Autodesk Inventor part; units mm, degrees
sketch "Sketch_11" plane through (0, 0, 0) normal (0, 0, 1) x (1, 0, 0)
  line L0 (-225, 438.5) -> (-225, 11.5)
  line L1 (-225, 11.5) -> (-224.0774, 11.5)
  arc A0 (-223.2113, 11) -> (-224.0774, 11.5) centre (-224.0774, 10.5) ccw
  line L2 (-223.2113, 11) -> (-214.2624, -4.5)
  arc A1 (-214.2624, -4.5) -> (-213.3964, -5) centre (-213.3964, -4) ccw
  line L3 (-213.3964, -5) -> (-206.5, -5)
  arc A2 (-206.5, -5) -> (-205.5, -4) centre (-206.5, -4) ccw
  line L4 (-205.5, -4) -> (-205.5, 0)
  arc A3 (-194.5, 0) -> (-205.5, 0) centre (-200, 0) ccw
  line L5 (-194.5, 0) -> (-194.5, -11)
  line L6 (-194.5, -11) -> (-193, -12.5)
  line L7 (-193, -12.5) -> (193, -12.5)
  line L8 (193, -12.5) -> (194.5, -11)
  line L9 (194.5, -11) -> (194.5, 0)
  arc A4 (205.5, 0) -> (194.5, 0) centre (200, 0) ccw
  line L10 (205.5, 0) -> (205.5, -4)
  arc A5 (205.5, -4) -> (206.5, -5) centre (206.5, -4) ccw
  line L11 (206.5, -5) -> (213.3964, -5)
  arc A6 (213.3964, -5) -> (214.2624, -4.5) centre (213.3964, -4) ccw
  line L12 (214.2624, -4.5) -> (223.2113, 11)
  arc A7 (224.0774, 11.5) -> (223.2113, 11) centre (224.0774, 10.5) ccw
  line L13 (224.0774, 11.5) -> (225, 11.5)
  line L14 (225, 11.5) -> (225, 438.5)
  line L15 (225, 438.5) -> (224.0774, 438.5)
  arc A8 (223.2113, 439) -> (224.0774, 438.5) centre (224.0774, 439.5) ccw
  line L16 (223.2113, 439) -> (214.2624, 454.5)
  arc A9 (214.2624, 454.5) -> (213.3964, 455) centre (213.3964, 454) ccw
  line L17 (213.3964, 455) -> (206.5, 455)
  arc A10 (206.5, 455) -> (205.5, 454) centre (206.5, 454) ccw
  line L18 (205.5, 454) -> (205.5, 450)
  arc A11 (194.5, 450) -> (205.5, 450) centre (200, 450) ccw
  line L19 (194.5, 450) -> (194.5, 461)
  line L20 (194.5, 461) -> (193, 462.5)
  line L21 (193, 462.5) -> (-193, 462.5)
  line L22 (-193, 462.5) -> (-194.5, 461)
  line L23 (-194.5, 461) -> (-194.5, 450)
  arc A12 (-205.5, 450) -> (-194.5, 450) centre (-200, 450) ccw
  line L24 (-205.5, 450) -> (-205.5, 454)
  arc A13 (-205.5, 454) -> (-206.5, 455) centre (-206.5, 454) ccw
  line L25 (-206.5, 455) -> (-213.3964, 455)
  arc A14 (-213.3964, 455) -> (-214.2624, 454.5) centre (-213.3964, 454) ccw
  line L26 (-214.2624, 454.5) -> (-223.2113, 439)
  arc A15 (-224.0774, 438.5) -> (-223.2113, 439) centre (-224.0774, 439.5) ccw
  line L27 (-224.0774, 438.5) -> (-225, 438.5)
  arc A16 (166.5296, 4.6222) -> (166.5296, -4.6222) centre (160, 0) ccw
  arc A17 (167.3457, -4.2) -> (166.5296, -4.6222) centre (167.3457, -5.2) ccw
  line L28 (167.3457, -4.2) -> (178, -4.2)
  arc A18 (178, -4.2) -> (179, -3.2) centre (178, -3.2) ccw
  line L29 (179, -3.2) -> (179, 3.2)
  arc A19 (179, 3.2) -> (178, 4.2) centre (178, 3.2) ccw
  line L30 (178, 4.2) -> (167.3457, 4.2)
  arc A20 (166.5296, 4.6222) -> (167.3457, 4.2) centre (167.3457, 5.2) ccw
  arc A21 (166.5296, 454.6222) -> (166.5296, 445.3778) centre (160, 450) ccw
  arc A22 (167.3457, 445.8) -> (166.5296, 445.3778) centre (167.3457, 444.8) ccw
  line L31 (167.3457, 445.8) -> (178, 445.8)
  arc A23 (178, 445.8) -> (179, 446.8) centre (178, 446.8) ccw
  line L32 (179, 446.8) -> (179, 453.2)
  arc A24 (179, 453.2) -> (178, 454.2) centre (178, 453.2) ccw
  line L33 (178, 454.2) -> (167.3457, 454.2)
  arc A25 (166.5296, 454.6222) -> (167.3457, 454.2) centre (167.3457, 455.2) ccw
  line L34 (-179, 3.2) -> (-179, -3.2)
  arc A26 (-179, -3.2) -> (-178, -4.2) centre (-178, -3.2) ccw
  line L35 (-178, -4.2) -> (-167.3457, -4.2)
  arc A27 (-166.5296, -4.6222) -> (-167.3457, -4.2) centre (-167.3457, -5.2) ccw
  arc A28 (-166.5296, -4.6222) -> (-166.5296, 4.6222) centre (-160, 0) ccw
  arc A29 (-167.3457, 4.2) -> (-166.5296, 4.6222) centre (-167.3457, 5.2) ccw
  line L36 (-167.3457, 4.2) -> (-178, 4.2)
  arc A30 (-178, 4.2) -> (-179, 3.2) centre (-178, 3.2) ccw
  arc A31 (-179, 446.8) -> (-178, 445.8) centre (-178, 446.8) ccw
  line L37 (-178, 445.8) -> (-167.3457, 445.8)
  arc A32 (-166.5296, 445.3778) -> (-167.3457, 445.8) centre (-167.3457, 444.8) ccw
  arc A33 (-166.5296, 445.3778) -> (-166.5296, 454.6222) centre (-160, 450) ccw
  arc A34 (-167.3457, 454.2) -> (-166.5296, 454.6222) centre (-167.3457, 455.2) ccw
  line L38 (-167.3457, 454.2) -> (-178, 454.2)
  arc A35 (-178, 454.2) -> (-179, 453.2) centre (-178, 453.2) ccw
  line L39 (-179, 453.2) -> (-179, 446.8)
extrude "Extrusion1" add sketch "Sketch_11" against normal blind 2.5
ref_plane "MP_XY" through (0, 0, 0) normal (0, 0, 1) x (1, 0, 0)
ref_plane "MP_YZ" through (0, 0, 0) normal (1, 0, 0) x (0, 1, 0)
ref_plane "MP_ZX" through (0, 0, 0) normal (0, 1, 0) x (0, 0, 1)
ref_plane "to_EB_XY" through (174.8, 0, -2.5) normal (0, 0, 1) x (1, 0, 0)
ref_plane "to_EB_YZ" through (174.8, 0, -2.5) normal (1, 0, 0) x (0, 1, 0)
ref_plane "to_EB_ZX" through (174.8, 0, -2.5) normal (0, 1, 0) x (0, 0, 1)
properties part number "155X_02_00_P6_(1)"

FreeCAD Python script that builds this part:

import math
import FreeCAD as App
import Part
import Sketcher
from FreeCAD import Vector
Q = App.Units.Quantity

doc = App.newDocument("Part")
body = doc.addObject("PartDesign::Body", "Body")

# Sketch on XY plane
sketch1 = doc.addObject("Sketcher::SketchObject", "Sketch")
body.addObject(sketch1)
sketch1.AttachmentSupport = (doc.XY_Plane, [""])
sketch1.MapMode = "FlatFace"
sketch1.addGeometry([
    Part.LineSegment(Vector(-224.0774, 438.5, 0), Vector(-225, 438.5, 0)),  # 0
    Part.LineSegment(Vector(-225, 438.5, 0), Vector(-225, 11.5, 0)),  # 1
    Part.LineSegment(Vector(-225, 11.5, 0), Vector(-224.0774, 11.5, 0)),  # 2
    Part.ArcOfCircle(Part.Circle(Vector(-224.0774, 10.5, 0), Vector(0, 0, 1), 1.000065), math.radians(29.997863), math.radians(90)),  # 3
    Part.LineSegment(Vector(-223.2113, 11, 0), Vector(-214.2624, -4.5, 0)),  # 4
    Part.ArcOfCircle(Part.Circle(Vector(-213.3964, -4, 0), Vector(0, 0, 1), 0.999978), math.radians(-149.999272), math.radians(-90)),  # 5
    Part.LineSegment(Vector(-213.3964, -5, 0), Vector(-206.5, -5, 0)),  # 6
    Part.ArcOfCircle(Part.Circle(Vector(-206.5, -4, 0), Vector(0, 0, 1), 1), math.radians(-90), math.radians(0)),  # 7
    Part.LineSegment(Vector(-205.5, -4, 0), Vector(-205.5, 0, 0)),  # 8
    Part.ArcOfCircle(Part.Circle(Vector(-200, 0, 0), Vector(0, 0, 1), 5.5), math.radians(0), math.radians(180)),  # 9
    Part.LineSegment(Vector(-194.5, 0, 0), Vector(-194.5, -11, 0)),  # 10
    Part.LineSegment(Vector(-194.5, -11, 0), Vector(-193, -12.5, 0)),  # 11
    Part.LineSegment(Vector(-193, -12.5, 0), Vector(193, -12.5, 0)),  # 12
    Part.LineSegment(Vector(193, -12.5, 0), Vector(194.5, -11, 0)),  # 13
    Part.LineSegment(Vector(194.5, -11, 0), Vector(194.5, 0, 0)),  # 14
    Part.ArcOfCircle(Part.Circle(Vector(200, 0, 0), Vector(0, 0, 1), 5.5), math.radians(0), math.radians(180)),  # 15
    Part.LineSegment(Vector(205.5, 0, 0), Vector(205.5, -4, 0)),  # 16
    Part.ArcOfCircle(Part.Circle(Vector(206.5, -4, 0), Vector(0, 0, 1), 1), math.radians(180), math.radians(270)),  # 17
    Part.LineSegment(Vector(206.5, -5, 0), Vector(213.3964, -5, 0)),  # 18
    Part.ArcOfCircle(Part.Circle(Vector(213.3964, -4, 0), Vector(0, 0, 1), 1), math.radians(-90), math.radians(-30.000728)),  # 19
    Part.LineSegment(Vector(214.2624, -4.5, 0), Vector(223.2113, 11, 0)),  # 20
    Part.ArcOfCircle(Part.Circle(Vector(224.0774, 10.5, 0), Vector(0, 0, 1), 1), math.radians(90), math.radians(150.002137)),  # 21
    Part.LineSegment(Vector(224.0774, 11.5, 0), Vector(225, 11.5, 0)),  # 22
    Part.LineSegment(Vector(225, 11.5, 0), Vector(225, 438.5, 0)),  # 23
    Part.LineSegment(Vector(225, 438.5, 0), Vector(224.0774, 438.5, 0)),  # 24
    Part.ArcOfCircle(Part.Circle(Vector(224.0774, 439.5, 0), Vector(0, 0, 1), 1.000065), math.radians(-150.002137), math.radians(-90)),  # 25
    Part.LineSegment(Vector(223.2113, 439, 0), Vector(214.2624, 454.5, 0)),  # 26
    Part.ArcOfCircle(Part.Circle(Vector(213.3964, 454, 0), Vector(0, 0, 1), 0.999978), math.radians(30.000728), math.radians(90)),  # 27
    Part.LineSegment(Vector(213.3964, 455, 0), Vector(206.5, 455, 0)),  # 28
    Part.ArcOfCircle(Part.Circle(Vector(206.5, 454, 0), Vector(0, 0, 1), 1), math.radians(90), math.radians(180)),  # 29
    Part.LineSegment(Vector(205.5, 454, 0), Vector(205.5, 450, 0)),  # 30
    Part.ArcOfCircle(Part.Circle(Vector(200, 450, 0), Vector(0, 0, 1), 5.5), math.radians(180), math.radians(360)),  # 31
    Part.LineSegment(Vector(194.5, 450, 0), Vector(194.5, 461, 0)),  # 32
    Part.LineSegment(Vector(194.5, 461, 0), Vector(193, 462.5, 0)),  # 33
    Part.LineSegment(Vector(193, 462.5, 0), Vector(-193, 462.5, 0)),  # 34
    Part.LineSegment(Vector(-193, 462.5, 0), Vector(-194.5, 461, 0)),  # 35
    Part.LineSegment(Vector(-194.5, 461, 0), Vector(-194.5, 450, 0)),  # 36
    Part.ArcOfCircle(Part.Circle(Vector(-200, 450, 0), Vector(0, 0, 1), 5.5), math.radians(180), math.radians(360)),  # 37
    Part.LineSegment(Vector(-205.5, 450, 0), Vector(-205.5, 454, 0)),  # 38
    Part.ArcOfCircle(Part.Circle(Vector(-206.5, 454, 0), Vector(0, 0, 1), 1), math.radians(0), math.radians(90)),  # 39
    Part.LineSegment(Vector(-206.5, 455, 0), Vector(-213.3964, 455, 0)),  # 40
    Part.ArcOfCircle(Part.Circle(Vector(-213.3964, 454, 0), Vector(0, 0, 1), 1), math.radians(90), math.radians(149.999272)),  # 41
    Part.LineSegment(Vector(-214.2624, 454.5, 0), Vector(-223.2113, 439, 0)),  # 42
    Part.ArcOfCircle(Part.Circle(Vector(-224.0774, 439.5, 0), Vector(0, 0, 1), 1), math.radians(-90), math.radians(-29.997863)),  # 43
    Part.LineSegment(Vector(-179, -3.2, 0), Vector(-179, 3.2, 0)),  # 44
    Part.ArcOfCircle(Part.Circle(Vector(-178, 3.2, 0), Vector(0, 0, 1), 1), math.radians(90), math.radians(180)),  # 45
    Part.LineSegment(Vector(-178, 4.2, 0), Vector(-167.3457, 4.2, 0)),  # 46
    Part.ArcOfCircle(Part.Circle(Vector(-167.3457, 5.2, 0), Vector(0, 0, 1), 1), math.radians(-90), math.radians(-35.29855)),  # 47
    Part.ArcOfCircle(Part.Circle(Vector(-160, 0, 0), Vector(0, 0, 1), 8.000026), math.radians(-144.70593), math.radians(144.70593)),  # 48
    Part.ArcOfCircle(Part.Circle(Vector(-167.3457, -5.2, 0), Vector(0, 0, 1), 0.999936), math.radians(35.29855), math.radians(90)),  # 49
    Part.LineSegment(Vector(-167.3457, -4.2, 0), Vector(-178, -4.2, 0)),  # 50
    Part.ArcOfCircle(Part.Circle(Vector(-178, -3.2, 0), Vector(0, 0, 1), 1), math.radians(180), math.radians(270)),  # 51
    Part.ArcOfCircle(Part.Circle(Vector(160, 0, 0), Vector(0, 0, 1), 8.000026), math.radians(35.29407), math.radians(324.70593)),  # 52
    Part.ArcOfCircle(Part.Circle(Vector(167.3457, 5.2, 0), Vector(0, 0, 1), 0.999936), math.radians(-144.70145), math.radians(-90)),  # 53
    Part.LineSegment(Vector(167.3457, 4.2, 0), Vector(178, 4.2, 0)),  # 54
    Part.ArcOfCircle(Part.Circle(Vector(178, 3.2, 0), Vector(0, 0, 1), 1), math.radians(0), math.radians(90)),  # 55
    Part.LineSegment(Vector(179, 3.2, 0), Vector(179, -3.2, 0)),  # 56
    Part.ArcOfCircle(Part.Circle(Vector(178, -3.2, 0), Vector(0, 0, 1), 1), math.radians(-90), math.radians(0)),  # 57
    Part.LineSegment(Vector(178, -4.2, 0), Vector(167.3457, -4.2, 0)),  # 58
    Part.ArcOfCircle(Part.Circle(Vector(167.3457, -5.2, 0), Vector(0, 0, 1), 1), math.radians(90), math.radians(144.70145)),  # 59
    Part.ArcOfCircle(Part.Circle(Vector(-178, 446.8, 0), Vector(0, 0, 1), 1), math.radians(180), math.radians(270)),  # 60
    Part.LineSegment(Vector(-179, 446.8, 0), Vector(-179, 453.2, 0)),  # 61
    Part.ArcOfCircle(Part.Circle(Vector(-178, 453.2, 0), Vector(0, 0, 1), 1), math.radians(90), math.radians(180)),  # 62
    Part.LineSegment(Vector(-178, 454.2, 0), Vector(-167.3457, 454.2, 0)),  # 63
    Part.ArcOfCircle(Part.Circle(Vector(-167.3457, 455.2, 0), Vector(0, 0, 1), 1), math.radians(-90), math.radians(-35.29855)),  # 64
    Part.ArcOfCircle(Part.Circle(Vector(-160, 450, 0), Vector(0, 0, 1), 8.000026), math.radians(-144.70593), math.radians(144.70593)),  # 65
    Part.ArcOfCircle(Part.Circle(Vector(-167.3457, 444.8, 0), Vector(0, 0, 1), 0.999936), math.radians(35.29855), math.radians(90)),  # 66
    Part.LineSegment(Vector(-167.3457, 445.8, 0), Vector(-178, 445.8, 0)),  # 67
    Part.ArcOfCircle(Part.Circle(Vector(160, 450, 0), Vector(0, 0, 1), 8.000026), math.radians(35.29407), math.radians(324.70593)),  # 68
    Part.ArcOfCircle(Part.Circle(Vector(167.3457, 455.2, 0), Vector(0, 0, 1), 0.999936), math.radians(-144.70145), math.radians(-90)),  # 69
    Part.LineSegment(Vector(167.3457, 454.2, 0), Vector(178, 454.2, 0)),  # 70
    Part.ArcOfCircle(Part.Circle(Vector(178, 453.2, 0), Vector(0, 0, 1), 1), math.radians(0), math.radians(90)),  # 71
    Part.LineSegment(Vector(179, 453.2, 0), Vector(179, 446.8, 0)),  # 72
    Part.ArcOfCircle(Part.Circle(Vector(178, 446.8, 0), Vector(0, 0, 1), 1), math.radians(-90), math.radians(0)),  # 73
    Part.LineSegment(Vector(178, 445.8, 0), Vector(167.3457, 445.8, 0)),  # 74
    Part.ArcOfCircle(Part.Circle(Vector(167.3457, 444.8, 0), Vector(0, 0, 1), 1), math.radians(90), math.radians(144.70145)),  # 75
], False)
sketch1.addConstraint([
    Sketcher.Constraint("Coincident", 0, 2, 1, 1),
    Sketcher.Constraint("Coincident", 1, 2, 2, 1),
    Sketcher.Constraint("Tangent", 2, 2, 3, 2),
    Sketcher.Constraint("Tangent", 3, 1, 4, 1),
    Sketcher.Constraint("Tangent", 4, 2, 5, 1),
    Sketcher.Constraint("Tangent", 5, 2, 6, 1),
    Sketcher.Constraint("Tangent", 6, 2, 7, 1),
    Sketcher.Constraint("Tangent", 7, 2, 8, 1),
    Sketcher.Constraint("Tangent", 8, 2, 9, 2),
    Sketcher.Constraint("Tangent", 9, 1, 10, 1),
    Sketcher.Constraint("Coincident", 10, 2, 11, 1),
    Sketcher.Constraint("Coincident", 11, 2, 12, 1),
    Sketcher.Constraint("Coincident", 12, 2, 13, 1),
    Sketcher.Constraint("Coincident", 13, 2, 14, 1),
    Sketcher.Constraint("Tangent", 14, 2, 15, 2),
    Sketcher.Constraint("Tangent", 15, 1, 16, 1),
    Sketcher.Constraint("Tangent", 16, 2, 17, 1),
    Sketcher.Constraint("Tangent", 17, 2, 18, 1),
    Sketcher.Constraint("Tangent", 18, 2, 19, 1),
    Sketcher.Constraint("Tangent", 19, 2, 20, 1),
    Sketcher.Constraint("Tangent", 20, 2, 21, 2),
    Sketcher.Constraint("Tangent", 21, 1, 22, 1),
    Sketcher.Constraint("Coincident", 22, 2, 23, 1),
    Sketcher.Constraint("Coincident", 23, 2, 24, 1),
    Sketcher.Constraint("Tangent", 24, 2, 25, 2),
    Sketcher.Constraint("Tangent", 25, 1, 26, 1),
    Sketcher.Constraint("Tangent", 26, 2, 27, 1),
    Sketcher.Constraint("Tangent", 27, 2, 28, 1),
    Sketcher.Constraint("Tangent", 28, 2, 29, 1),
    Sketcher.Constraint("Tangent", 29, 2, 30, 1),
    Sketcher.Constraint("Tangent", 30, 2, 31, 2),
    Sketcher.Constraint("Tangent", 31, 1, 32, 1),
    Sketcher.Constraint("Coincident", 32, 2, 33, 1),
    Sketcher.Constraint("Coincident", 33, 2, 34, 1),
    Sketcher.Constraint("Coincident", 34, 2, 35, 1),
    Sketcher.Constraint("Coincident", 35, 2, 36, 1),
    Sketcher.Constraint("Tangent", 36, 2, 37, 2),
    Sketcher.Constraint("Tangent", 37, 1, 38, 1),
    Sketcher.Constraint("Tangent", 38, 2, 39, 1),
    Sketcher.Constraint("Tangent", 39, 2, 40, 1),
    Sketcher.Constraint("Tangent", 40, 2, 41, 1),
    Sketcher.Constraint("Tangent", 41, 2, 42, 1),
    Sketcher.Constraint("Tangent", 42, 2, 43, 2),
    Sketcher.Constraint("Tangent", 43, 1, 0, 1),
    Sketcher.Constraint("Tangent", 44, 2, 45, 2),
    Sketcher.Constraint("Tangent", 45, 1, 46, 1),
    Sketcher.Constraint("Tangent", 46, 2, 47, 1),
    Sketcher.Constraint("Tangent", 47, 2, 48, 2),
    Sketcher.Constraint("Tangent", 48, 1, 49, 1),
    Sketcher.Constraint("Tangent", 49, 2, 50, 1),
    Sketcher.Constraint("Tangent", 50, 2, 51, 2),
    Sketcher.Constraint("Tangent", 51, 1, 44, 1),
    Sketcher.Constraint("Tangent", 52, 1, 53, 1),
    Sketcher.Constraint("Tangent", 53, 2, 54, 1),
    Sketcher.Constraint("Tangent", 54, 2, 55, 2),
    Sketcher.Constraint("Tangent", 55, 1, 56, 1),
    Sketcher.Constraint("Tangent", 56, 2, 57, 2),
    Sketcher.Constraint("Tangent", 57, 1, 58, 1),
    Sketcher.Constraint("Tangent", 58, 2, 59, 1),
    Sketcher.Constraint("Tangent", 59, 2, 52, 2),
    Sketcher.Constraint("Tangent", 60, 1, 61, 1),
    Sketcher.Constraint("Tangent", 61, 2, 62, 2),
    Sketcher.Constraint("Tangent", 62, 1, 63, 1),
    Sketcher.Constraint("Tangent", 63, 2, 64, 1),
    Sketcher.Constraint("Tangent", 64, 2, 65, 2),
    Sketcher.Constraint("Tangent", 65, 1, 66, 1),
    Sketcher.Constraint("Tangent", 66, 2, 67, 1),
    Sketcher.Constraint("Tangent", 67, 2, 60, 2),
    Sketcher.Constraint("Tangent", 68, 1, 69, 1),
    Sketcher.Constraint("Tangent", 69, 2, 70, 1),
    Sketcher.Constraint("Tangent", 70, 2, 71, 2),
    Sketcher.Constraint("Tangent", 71, 1, 72, 1),
    Sketcher.Constraint("Tangent", 72, 2, 73, 2),
    Sketcher.Constraint("Tangent", 73, 1, 74, 1),
    Sketcher.Constraint("Tangent", 74, 2, 75, 1),
    Sketcher.Constraint("Tangent", 75, 2, 68, 2),
    Sketcher.Constraint("Horizontal", 0),
    Sketcher.Constraint("Vertical", 1),
    Sketcher.Constraint("Horizontal", 2),
    Sketcher.Constraint("Horizontal", 6),
    Sketcher.Constraint("Vertical", 8),
    Sketcher.Constraint("Vertical", 10),
    Sketcher.Constraint("Horizontal", 12),
    Sketcher.Constraint("Vertical", 14),
    Sketcher.Constraint("Vertical", 16),
    Sketcher.Constraint("Horizontal", 18),
    Sketcher.Constraint("Horizontal", 22),
    Sketcher.Constraint("Vertical", 23),
    Sketcher.Constraint("Horizontal", 24),
    Sketcher.Constraint("Horizontal", 28),
    Sketcher.Constraint("Vertical", 30),
    Sketcher.Constraint("Vertical", 32),
    Sketcher.Constraint("Horizontal", 34),
    Sketcher.Constraint("Vertical", 36),
    Sketcher.Constraint("Vertical", 38),
    Sketcher.Constraint("Horizontal", 40),
    Sketcher.Constraint("Vertical", 44),
    Sketcher.Constraint("Horizontal", 46),
    Sketcher.Constraint("Horizontal", 50),
    Sketcher.Constraint("Horizontal", 54),
    Sketcher.Constraint("Vertical", 56),
    Sketcher.Constraint("Horizontal", 58),
    Sketcher.Constraint("Vertical", 61),
    Sketcher.Constraint("Horizontal", 63),
    Sketcher.Constraint("Horizontal", 67),
    Sketcher.Constraint("Horizontal", 70),
    Sketcher.Constraint("Vertical", 72),
    Sketcher.Constraint("Horizontal", 74),
    Sketcher.Constraint("Equal", 3, 5),
    Sketcher.Constraint("Equal", 5, 7),
    Sketcher.Constraint("Equal", 9, 15),
    Sketcher.Constraint("Equal", 7, 17),
    Sketcher.Constraint("Equal", 17, 19),
    Sketcher.Constraint("Equal", 19, 21),
    Sketcher.Constraint("Equal", 21, 25),
    Sketcher.Constraint("Equal", 25, 27),
    Sketcher.Constraint("Equal", 27, 29),
    Sketcher.Constraint("Equal", 15, 31),
    Sketcher.Constraint("Equal", 31, 37),
    Sketcher.Constraint("Equal", 29, 39),
    Sketcher.Constraint("Equal", 39, 41),
    Sketcher.Constraint("Equal", 41, 43),
    Sketcher.Constraint("Equal", 43, 45),
    Sketcher.Constraint("Equal", 45, 47),
    Sketcher.Constraint("Equal", 47, 49),
    Sketcher.Constraint("Equal", 49, 51),
    Sketcher.Constraint("Equal", 48, 52),
    Sketcher.Constraint("Equal", 51, 53),
    Sketcher.Constraint("Equal", 53, 55),
    Sketcher.Constraint("Equal", 55, 57),
    Sketcher.Constraint("Equal", 57, 59),
    Sketcher.Constraint("Equal", 59, 60),
    Sketcher.Constraint("Equal", 60, 62),
    Sketcher.Constraint("Equal", 62, 64),
    Sketcher.Constraint("Equal", 52, 65),
    Sketcher.Constraint("Equal", 64, 66),
    Sketcher.Constraint("Equal", 65, 68),
    Sketcher.Constraint("Equal", 66, 69),
    Sketcher.Constraint("Equal", 69, 71),
    Sketcher.Constraint("Equal", 71, 73),
    Sketcher.Constraint("Equal", 73, 75),
    Sketcher.Constraint("Symmetric", 9, 3, 15, 3, -1, 1),
    Sketcher.Constraint("Symmetric", 48, 3, 52, 3, -1, 1),
    Sketcher.Constraint("Symmetric", 51, 3, 55, 3, -1, 1),
    Sketcher.Constraint("Symmetric", 5, 3, 19, 3, -2),
    Sketcher.Constraint("Symmetric", 3, 3, 21, 3, -2),
    Sketcher.Constraint("Symmetric", 31, 3, 37, 3, -2),
    Sketcher.Constraint("Symmetric", 27, 3, 41, 3, -2),
    Sketcher.Constraint("Symmetric", 25, 3, 43, 3, -2),
    Sketcher.Constraint("Symmetric", 47, 3, 53, 3, -2),
    Sketcher.Constraint("Symmetric", 65, 3, 68, 3, -2),
    Sketcher.Constraint("Symmetric", 62, 3, 71, 3, -2),
    Sketcher.Constraint("PointOnObject", 9, 3, -1),
    Sketcher.Constraint("Perpendicular", 11, 13),
    Sketcher.Constraint("Parallel", 4, 26),
    Sketcher.Constraint("Perpendicular", 13, 33),
    Sketcher.Constraint("Perpendicular", 33, 35),
    Sketcher.Constraint("Horizontal", 51, 3, 57, 3),
    Sketcher.Constraint("Horizontal", 37, 3, 65, 3),
    Sketcher.Constraint("Horizontal", 60, 3, 73, 3),
    Sketcher.Constraint("Horizontal", 10, 2, 13, 2),
    Sketcher.Constraint("Horizontal", 32, 2, 35, 2),
    Sketcher.Constraint("Vertical", 21, 3, 25, 3),
    Sketcher.Constraint("Vertical", 19, 3, 27, 3),
    Sketcher.Constraint("Vertical", 17, 3, 29, 3),
    Sketcher.Constraint("Vertical", 51, 3, 60, 3),
    Sketcher.Constraint("Vertical", 49, 3, 64, 3),
    Sketcher.Constraint("Vertical", 48, 3, 65, 3),
    Sketcher.Constraint("Vertical", 64, 3, 66, 3),
    Sketcher.Constraint("Vertical", 12, 2, 33, 2),
    Sketcher.Constraint("Vertical", 11, 2, 34, 2),
    Sketcher.Constraint("Equal", 2, 22),
    Sketcher.Constraint("Equal", 16, 30),
    Sketcher.Constraint("Equal", 14, 32),
    Sketcher.Constraint("Radius", 3, 1.0),
    Sketcher.Constraint("Radius", 48, 8.0),
    Sketcher.Constraint("Radius", 9, 5.5),
    Sketcher.Constraint("DistanceX", 12, 1, 12, 2, 386.0),
    Sketcher.Constraint("DistanceY", 1, 2, 1, 1, 427.0),
    Sketcher.Constraint("DistanceY", 8, 1, 8, 2, 4.0),
    Sketcher.Constraint("DistanceY", 10, 2, 10, 1, 11.0),
    Sketcher.Constraint("Angle", 4, Q("-60 deg")),
    Sketcher.Constraint("DistanceY", 44, 1, 44, 2, 6.4),
    Sketcher.Constraint("DistanceX", 9, 3, -1, 1, 200.0),
    Sketcher.Constraint("DistanceY", -1, 1, 27, 3, 454.0),
    Sketcher.Constraint("DistanceX", 45, 3, -1, 1, 178.0),
    Sketcher.Constraint("DistanceX", 48, 3, -1, 1, 160.0),
    Sketcher.Constraint("DistanceX", 0, 2, -1, 1, 225.0),
    Sketcher.Constraint("DistanceX", 0, 2, 0, 1, 0.9226),
])
pad1 = doc.addObject("PartDesign::Pad", "Pad")
body.addObject(pad1)
pad1.Profile = sketch1
pad1.Length = 2.5
pad1.Reversed = True

doc.recompute()
